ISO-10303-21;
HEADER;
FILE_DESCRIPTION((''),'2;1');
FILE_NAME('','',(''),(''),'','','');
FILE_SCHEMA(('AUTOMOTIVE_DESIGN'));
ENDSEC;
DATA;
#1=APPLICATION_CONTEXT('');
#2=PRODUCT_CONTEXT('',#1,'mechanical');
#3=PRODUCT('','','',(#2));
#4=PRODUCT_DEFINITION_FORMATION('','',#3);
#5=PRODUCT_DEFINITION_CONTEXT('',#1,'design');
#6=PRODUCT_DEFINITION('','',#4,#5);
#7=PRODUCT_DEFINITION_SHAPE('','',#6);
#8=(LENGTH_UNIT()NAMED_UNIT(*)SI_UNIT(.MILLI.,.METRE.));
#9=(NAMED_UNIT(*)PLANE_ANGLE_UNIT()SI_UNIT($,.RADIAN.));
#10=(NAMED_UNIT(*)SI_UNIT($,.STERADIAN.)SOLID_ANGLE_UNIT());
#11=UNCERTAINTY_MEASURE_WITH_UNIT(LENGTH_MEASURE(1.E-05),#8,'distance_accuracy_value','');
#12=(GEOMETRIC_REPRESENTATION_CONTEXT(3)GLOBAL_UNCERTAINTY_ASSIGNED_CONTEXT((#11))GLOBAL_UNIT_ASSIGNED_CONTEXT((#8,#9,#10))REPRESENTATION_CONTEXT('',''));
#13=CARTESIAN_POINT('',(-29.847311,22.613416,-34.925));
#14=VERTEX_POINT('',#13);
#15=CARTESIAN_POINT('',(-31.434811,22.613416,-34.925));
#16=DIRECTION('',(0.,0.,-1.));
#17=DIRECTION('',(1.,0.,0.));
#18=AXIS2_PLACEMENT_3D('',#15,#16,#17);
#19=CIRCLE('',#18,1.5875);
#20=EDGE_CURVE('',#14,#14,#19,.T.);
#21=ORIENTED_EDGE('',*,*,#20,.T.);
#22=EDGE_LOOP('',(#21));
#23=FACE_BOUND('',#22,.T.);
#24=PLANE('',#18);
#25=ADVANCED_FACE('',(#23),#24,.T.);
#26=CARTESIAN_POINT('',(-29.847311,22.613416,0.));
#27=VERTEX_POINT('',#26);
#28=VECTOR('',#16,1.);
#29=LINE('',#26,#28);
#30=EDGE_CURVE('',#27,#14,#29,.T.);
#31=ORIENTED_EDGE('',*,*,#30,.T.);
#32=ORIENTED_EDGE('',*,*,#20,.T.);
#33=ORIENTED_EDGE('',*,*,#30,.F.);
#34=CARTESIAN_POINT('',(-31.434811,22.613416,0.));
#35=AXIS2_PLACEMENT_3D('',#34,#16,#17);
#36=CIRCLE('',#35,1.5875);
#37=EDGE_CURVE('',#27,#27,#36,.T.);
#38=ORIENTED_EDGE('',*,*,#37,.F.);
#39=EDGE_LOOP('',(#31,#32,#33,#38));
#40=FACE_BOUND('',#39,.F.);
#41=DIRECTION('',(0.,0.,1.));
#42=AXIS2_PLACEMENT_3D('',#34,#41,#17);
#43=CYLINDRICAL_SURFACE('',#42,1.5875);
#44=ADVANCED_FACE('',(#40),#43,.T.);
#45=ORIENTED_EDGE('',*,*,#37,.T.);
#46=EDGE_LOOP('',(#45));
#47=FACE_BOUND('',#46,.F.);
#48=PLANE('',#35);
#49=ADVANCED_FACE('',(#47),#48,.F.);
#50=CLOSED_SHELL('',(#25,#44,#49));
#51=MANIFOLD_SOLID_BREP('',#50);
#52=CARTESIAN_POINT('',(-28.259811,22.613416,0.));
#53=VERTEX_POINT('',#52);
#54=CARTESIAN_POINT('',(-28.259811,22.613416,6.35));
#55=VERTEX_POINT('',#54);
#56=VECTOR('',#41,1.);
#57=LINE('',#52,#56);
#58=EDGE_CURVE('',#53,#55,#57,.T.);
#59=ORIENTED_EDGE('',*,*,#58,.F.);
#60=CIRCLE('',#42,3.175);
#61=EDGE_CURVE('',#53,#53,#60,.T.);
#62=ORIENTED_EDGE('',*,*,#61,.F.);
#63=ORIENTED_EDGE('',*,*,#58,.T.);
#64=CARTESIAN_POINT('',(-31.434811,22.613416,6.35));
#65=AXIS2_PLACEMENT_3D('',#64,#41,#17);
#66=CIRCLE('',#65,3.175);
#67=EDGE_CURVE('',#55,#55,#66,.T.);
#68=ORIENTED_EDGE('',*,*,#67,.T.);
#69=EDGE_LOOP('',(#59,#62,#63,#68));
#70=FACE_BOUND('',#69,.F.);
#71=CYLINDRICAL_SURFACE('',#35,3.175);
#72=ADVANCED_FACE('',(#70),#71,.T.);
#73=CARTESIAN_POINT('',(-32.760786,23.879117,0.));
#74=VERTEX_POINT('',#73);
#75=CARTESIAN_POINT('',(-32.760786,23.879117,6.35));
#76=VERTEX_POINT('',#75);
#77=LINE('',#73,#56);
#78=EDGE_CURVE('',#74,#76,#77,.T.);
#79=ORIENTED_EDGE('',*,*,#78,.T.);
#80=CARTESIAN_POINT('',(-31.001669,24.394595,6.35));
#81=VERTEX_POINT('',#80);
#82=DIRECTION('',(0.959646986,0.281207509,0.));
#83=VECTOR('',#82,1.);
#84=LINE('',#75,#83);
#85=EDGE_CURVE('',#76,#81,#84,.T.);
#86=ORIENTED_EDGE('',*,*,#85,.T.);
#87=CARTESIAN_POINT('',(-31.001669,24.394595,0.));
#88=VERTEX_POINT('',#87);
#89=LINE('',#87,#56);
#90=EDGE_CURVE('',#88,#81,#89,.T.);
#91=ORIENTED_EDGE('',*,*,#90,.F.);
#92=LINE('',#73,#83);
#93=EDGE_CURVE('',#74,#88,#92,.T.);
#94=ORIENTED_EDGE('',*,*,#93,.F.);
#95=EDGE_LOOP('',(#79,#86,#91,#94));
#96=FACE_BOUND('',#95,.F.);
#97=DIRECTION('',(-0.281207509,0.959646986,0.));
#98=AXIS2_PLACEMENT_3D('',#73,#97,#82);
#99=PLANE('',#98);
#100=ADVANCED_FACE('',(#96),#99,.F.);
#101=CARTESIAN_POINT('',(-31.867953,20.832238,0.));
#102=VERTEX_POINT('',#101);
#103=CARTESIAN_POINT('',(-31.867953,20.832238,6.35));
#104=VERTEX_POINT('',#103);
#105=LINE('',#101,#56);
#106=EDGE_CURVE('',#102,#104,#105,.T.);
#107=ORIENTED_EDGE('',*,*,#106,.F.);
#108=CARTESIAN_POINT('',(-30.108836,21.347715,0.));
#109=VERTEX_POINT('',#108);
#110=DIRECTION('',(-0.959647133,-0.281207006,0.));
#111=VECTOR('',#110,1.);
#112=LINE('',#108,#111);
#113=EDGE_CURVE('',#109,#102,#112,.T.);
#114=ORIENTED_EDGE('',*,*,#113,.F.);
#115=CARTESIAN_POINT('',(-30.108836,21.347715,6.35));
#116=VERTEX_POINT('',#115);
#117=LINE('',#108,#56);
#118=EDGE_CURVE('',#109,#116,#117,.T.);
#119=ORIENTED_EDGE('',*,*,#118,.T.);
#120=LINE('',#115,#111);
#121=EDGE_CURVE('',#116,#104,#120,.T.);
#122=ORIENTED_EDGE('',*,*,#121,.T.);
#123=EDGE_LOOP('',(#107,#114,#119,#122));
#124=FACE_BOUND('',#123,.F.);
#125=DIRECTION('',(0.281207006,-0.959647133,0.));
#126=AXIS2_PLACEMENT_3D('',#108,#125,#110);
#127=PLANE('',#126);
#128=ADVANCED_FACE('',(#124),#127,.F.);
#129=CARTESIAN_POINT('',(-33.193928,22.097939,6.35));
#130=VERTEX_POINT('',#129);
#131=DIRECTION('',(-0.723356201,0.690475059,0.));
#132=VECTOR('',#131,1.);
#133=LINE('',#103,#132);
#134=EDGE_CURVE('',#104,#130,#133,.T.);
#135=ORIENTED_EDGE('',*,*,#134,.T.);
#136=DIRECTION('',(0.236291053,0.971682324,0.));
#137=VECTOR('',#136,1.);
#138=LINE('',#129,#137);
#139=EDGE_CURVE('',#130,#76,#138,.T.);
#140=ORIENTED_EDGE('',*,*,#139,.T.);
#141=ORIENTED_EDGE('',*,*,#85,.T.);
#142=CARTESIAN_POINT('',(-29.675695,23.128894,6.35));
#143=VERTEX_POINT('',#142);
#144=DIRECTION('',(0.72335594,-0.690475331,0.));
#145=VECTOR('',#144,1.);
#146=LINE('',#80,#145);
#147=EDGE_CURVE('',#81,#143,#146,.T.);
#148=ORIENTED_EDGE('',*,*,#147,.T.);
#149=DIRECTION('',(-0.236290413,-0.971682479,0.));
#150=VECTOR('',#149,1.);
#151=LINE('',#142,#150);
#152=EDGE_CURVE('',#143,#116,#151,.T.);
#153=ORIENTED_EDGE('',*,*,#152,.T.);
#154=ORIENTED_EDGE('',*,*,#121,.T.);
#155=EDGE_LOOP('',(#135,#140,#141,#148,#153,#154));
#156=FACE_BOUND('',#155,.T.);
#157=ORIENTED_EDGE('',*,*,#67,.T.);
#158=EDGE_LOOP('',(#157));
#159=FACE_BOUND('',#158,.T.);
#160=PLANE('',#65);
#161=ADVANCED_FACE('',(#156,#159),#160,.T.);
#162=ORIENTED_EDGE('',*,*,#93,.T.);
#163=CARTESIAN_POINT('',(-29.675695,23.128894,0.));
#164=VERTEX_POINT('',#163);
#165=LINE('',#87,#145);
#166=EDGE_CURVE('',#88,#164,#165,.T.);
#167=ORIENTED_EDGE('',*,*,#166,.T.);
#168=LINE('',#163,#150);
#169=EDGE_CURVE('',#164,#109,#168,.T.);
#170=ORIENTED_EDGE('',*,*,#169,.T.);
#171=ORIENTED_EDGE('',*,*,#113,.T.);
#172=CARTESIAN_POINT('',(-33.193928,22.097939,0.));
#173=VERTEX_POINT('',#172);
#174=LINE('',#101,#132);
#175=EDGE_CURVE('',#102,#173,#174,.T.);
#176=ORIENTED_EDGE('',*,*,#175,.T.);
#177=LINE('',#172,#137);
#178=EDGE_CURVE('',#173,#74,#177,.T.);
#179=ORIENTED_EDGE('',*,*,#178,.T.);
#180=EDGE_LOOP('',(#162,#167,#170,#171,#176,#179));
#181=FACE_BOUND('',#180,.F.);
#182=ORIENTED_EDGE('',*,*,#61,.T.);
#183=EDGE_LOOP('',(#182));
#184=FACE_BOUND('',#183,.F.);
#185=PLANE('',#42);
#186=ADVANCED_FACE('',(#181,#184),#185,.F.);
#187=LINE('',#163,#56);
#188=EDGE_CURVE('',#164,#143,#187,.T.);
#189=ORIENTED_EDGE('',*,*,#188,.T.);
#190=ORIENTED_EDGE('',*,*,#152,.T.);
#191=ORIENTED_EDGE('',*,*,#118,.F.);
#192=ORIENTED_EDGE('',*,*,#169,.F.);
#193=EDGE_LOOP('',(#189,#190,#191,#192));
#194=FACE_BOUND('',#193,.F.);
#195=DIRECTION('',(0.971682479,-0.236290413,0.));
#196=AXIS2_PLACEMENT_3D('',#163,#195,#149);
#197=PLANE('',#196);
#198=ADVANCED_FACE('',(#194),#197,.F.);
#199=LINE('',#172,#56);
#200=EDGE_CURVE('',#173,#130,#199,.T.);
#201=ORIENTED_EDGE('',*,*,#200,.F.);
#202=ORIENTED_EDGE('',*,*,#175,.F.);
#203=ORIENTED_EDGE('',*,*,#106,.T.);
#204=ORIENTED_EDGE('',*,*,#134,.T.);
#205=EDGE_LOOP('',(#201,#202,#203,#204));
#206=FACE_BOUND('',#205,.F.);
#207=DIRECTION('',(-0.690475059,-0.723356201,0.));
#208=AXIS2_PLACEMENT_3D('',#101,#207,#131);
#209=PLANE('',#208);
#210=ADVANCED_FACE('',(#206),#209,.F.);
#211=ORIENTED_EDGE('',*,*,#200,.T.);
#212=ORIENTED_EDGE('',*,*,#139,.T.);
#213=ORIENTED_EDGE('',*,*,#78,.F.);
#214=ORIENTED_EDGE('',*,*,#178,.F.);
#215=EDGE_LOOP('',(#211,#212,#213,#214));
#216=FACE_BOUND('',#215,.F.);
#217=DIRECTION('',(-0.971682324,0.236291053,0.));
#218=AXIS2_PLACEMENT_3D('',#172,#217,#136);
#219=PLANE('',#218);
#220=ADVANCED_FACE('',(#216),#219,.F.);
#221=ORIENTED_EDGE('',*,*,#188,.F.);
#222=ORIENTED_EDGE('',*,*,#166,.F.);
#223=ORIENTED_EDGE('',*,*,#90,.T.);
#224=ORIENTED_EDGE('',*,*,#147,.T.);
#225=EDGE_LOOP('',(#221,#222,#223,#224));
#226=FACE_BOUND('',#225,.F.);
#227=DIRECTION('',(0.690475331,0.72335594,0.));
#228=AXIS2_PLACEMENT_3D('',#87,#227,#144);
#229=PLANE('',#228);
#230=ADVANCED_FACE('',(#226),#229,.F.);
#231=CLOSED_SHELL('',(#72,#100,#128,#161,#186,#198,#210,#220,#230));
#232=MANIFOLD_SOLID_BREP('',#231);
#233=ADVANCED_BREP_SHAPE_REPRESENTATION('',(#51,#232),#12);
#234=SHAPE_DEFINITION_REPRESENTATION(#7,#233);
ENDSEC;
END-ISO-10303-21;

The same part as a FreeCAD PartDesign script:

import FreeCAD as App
import Part
import Sketcher
Q = App.Units.Quantity

doc = App.newDocument("Part")
body = doc.addObject("PartDesign::Body", "Body")

sketch1 = body.newObject("Sketcher::SketchObject", "Sketch")
sketch1.AttachmentSupport = (doc.getObject("XY_Plane"), [""])
sketch1.MapMode = "FlatFace"
sketch1.addGeometry([
    Part.Circle(App.Vector(-31.4, 22.6, 0), App.Vector(0, 0, 1), 3.2),
    Part.LineSegment(App.Vector(-31.9, 20.8, 0), App.Vector(-33.2, 22.1, 0)),
    Part.LineSegment(App.Vector(-33.2, 22.1, 0), App.Vector(-32.8, 23.9, 0)),
    Part.LineSegment(App.Vector(-32.8, 23.9, 0), App.Vector(-31, 24.4, 0)),
    Part.LineSegment(App.Vector(-31, 24.4, 0), App.Vector(-29.7, 23.1, 0)),
    Part.LineSegment(App.Vector(-29.7, 23.1, 0), App.Vector(-30.1, 21.3, 0)),
    Part.LineSegment(App.Vector(-30.1, 21.3, 0), App.Vector(-31.9, 20.8, 0)),
], False)
sketch1.addConstraint([
    Sketcher.Constraint("Coincident", 1, 2, 2, 1),
    Sketcher.Constraint("Coincident", 2, 2, 3, 1),
    Sketcher.Constraint("Coincident", 3, 2, 4, 1),
    Sketcher.Constraint("Coincident", 4, 2, 5, 1),
    Sketcher.Constraint("Coincident", 5, 2, 6, 1),
    Sketcher.Constraint("Coincident", 6, 2, 1, 1),
    Sketcher.Constraint("Parallel", 1, 4),
    Sketcher.Constraint("Parallel", 2, 5),
    Sketcher.Constraint("Parallel", 3, 6),
    Sketcher.Constraint("Equal", 1, 2),
    Sketcher.Constraint("Equal", 2, 3),
    Sketcher.Constraint("Equal", 3, 4),
    Sketcher.Constraint("Diameter", 0, Q("0.25 in")),
    Sketcher.Constraint("DistanceY", 0, 3, 2, 2, 1.265701),
    Sketcher.Constraint("DistanceY", 4, 2, 3, 2, 1.265701),
    Sketcher.Constraint("DistanceY", 5, 2, 0, 3, 1.265701),
    Sketcher.Constraint("DistanceX", 0, 3, -1, 1, 31.434811),
    Sketcher.Constraint("DistanceY", -1, 1, 1, 2, 22.097939),
    Sketcher.Constraint("DistanceX", 3, 2, -1, 1, 31.001669),
    Sketcher.Constraint("DistanceX", 1, 2, 2, 2, 0.433142),
    Sketcher.Constraint("DistanceY", 1, 2, 2, 2, 1.781178),
])
pad1 = body.newObject("PartDesign::Pad", "Pad")
pad1.Profile = sketch1
pad1.Length = Q("0.25 in")
body2 = doc.addObject("PartDesign::Body", "Body001")

sketch2 = body2.newObject("Sketcher::SketchObject", "Sketch001")
sketch2.AttachmentSupport = (doc.getObject("XY_Plane001"), [""])
sketch2.MapMode = "FlatFace"
sketch2.addGeometry(Part.Circle(App.Vector(-31.4, 22.6, 0), App.Vector(0, 0, 1), 1.6), False)
sketch2.addConstraint([
    Sketcher.Constraint("Diameter", 0, Q("0.125 in")),
    Sketcher.Constraint("DistanceX", 0, 3, -1, 1, 31.434811),
    Sketcher.Constraint("DistanceY", -1, 1, 0, 3, 22.613416),
])
pad2 = body2.newObject("PartDesign::Pad", "Pad001")
pad2.Profile = sketch2
pad2.Length = Q("1.375 in")
pad2.Reversed = True

doc.recompute()
